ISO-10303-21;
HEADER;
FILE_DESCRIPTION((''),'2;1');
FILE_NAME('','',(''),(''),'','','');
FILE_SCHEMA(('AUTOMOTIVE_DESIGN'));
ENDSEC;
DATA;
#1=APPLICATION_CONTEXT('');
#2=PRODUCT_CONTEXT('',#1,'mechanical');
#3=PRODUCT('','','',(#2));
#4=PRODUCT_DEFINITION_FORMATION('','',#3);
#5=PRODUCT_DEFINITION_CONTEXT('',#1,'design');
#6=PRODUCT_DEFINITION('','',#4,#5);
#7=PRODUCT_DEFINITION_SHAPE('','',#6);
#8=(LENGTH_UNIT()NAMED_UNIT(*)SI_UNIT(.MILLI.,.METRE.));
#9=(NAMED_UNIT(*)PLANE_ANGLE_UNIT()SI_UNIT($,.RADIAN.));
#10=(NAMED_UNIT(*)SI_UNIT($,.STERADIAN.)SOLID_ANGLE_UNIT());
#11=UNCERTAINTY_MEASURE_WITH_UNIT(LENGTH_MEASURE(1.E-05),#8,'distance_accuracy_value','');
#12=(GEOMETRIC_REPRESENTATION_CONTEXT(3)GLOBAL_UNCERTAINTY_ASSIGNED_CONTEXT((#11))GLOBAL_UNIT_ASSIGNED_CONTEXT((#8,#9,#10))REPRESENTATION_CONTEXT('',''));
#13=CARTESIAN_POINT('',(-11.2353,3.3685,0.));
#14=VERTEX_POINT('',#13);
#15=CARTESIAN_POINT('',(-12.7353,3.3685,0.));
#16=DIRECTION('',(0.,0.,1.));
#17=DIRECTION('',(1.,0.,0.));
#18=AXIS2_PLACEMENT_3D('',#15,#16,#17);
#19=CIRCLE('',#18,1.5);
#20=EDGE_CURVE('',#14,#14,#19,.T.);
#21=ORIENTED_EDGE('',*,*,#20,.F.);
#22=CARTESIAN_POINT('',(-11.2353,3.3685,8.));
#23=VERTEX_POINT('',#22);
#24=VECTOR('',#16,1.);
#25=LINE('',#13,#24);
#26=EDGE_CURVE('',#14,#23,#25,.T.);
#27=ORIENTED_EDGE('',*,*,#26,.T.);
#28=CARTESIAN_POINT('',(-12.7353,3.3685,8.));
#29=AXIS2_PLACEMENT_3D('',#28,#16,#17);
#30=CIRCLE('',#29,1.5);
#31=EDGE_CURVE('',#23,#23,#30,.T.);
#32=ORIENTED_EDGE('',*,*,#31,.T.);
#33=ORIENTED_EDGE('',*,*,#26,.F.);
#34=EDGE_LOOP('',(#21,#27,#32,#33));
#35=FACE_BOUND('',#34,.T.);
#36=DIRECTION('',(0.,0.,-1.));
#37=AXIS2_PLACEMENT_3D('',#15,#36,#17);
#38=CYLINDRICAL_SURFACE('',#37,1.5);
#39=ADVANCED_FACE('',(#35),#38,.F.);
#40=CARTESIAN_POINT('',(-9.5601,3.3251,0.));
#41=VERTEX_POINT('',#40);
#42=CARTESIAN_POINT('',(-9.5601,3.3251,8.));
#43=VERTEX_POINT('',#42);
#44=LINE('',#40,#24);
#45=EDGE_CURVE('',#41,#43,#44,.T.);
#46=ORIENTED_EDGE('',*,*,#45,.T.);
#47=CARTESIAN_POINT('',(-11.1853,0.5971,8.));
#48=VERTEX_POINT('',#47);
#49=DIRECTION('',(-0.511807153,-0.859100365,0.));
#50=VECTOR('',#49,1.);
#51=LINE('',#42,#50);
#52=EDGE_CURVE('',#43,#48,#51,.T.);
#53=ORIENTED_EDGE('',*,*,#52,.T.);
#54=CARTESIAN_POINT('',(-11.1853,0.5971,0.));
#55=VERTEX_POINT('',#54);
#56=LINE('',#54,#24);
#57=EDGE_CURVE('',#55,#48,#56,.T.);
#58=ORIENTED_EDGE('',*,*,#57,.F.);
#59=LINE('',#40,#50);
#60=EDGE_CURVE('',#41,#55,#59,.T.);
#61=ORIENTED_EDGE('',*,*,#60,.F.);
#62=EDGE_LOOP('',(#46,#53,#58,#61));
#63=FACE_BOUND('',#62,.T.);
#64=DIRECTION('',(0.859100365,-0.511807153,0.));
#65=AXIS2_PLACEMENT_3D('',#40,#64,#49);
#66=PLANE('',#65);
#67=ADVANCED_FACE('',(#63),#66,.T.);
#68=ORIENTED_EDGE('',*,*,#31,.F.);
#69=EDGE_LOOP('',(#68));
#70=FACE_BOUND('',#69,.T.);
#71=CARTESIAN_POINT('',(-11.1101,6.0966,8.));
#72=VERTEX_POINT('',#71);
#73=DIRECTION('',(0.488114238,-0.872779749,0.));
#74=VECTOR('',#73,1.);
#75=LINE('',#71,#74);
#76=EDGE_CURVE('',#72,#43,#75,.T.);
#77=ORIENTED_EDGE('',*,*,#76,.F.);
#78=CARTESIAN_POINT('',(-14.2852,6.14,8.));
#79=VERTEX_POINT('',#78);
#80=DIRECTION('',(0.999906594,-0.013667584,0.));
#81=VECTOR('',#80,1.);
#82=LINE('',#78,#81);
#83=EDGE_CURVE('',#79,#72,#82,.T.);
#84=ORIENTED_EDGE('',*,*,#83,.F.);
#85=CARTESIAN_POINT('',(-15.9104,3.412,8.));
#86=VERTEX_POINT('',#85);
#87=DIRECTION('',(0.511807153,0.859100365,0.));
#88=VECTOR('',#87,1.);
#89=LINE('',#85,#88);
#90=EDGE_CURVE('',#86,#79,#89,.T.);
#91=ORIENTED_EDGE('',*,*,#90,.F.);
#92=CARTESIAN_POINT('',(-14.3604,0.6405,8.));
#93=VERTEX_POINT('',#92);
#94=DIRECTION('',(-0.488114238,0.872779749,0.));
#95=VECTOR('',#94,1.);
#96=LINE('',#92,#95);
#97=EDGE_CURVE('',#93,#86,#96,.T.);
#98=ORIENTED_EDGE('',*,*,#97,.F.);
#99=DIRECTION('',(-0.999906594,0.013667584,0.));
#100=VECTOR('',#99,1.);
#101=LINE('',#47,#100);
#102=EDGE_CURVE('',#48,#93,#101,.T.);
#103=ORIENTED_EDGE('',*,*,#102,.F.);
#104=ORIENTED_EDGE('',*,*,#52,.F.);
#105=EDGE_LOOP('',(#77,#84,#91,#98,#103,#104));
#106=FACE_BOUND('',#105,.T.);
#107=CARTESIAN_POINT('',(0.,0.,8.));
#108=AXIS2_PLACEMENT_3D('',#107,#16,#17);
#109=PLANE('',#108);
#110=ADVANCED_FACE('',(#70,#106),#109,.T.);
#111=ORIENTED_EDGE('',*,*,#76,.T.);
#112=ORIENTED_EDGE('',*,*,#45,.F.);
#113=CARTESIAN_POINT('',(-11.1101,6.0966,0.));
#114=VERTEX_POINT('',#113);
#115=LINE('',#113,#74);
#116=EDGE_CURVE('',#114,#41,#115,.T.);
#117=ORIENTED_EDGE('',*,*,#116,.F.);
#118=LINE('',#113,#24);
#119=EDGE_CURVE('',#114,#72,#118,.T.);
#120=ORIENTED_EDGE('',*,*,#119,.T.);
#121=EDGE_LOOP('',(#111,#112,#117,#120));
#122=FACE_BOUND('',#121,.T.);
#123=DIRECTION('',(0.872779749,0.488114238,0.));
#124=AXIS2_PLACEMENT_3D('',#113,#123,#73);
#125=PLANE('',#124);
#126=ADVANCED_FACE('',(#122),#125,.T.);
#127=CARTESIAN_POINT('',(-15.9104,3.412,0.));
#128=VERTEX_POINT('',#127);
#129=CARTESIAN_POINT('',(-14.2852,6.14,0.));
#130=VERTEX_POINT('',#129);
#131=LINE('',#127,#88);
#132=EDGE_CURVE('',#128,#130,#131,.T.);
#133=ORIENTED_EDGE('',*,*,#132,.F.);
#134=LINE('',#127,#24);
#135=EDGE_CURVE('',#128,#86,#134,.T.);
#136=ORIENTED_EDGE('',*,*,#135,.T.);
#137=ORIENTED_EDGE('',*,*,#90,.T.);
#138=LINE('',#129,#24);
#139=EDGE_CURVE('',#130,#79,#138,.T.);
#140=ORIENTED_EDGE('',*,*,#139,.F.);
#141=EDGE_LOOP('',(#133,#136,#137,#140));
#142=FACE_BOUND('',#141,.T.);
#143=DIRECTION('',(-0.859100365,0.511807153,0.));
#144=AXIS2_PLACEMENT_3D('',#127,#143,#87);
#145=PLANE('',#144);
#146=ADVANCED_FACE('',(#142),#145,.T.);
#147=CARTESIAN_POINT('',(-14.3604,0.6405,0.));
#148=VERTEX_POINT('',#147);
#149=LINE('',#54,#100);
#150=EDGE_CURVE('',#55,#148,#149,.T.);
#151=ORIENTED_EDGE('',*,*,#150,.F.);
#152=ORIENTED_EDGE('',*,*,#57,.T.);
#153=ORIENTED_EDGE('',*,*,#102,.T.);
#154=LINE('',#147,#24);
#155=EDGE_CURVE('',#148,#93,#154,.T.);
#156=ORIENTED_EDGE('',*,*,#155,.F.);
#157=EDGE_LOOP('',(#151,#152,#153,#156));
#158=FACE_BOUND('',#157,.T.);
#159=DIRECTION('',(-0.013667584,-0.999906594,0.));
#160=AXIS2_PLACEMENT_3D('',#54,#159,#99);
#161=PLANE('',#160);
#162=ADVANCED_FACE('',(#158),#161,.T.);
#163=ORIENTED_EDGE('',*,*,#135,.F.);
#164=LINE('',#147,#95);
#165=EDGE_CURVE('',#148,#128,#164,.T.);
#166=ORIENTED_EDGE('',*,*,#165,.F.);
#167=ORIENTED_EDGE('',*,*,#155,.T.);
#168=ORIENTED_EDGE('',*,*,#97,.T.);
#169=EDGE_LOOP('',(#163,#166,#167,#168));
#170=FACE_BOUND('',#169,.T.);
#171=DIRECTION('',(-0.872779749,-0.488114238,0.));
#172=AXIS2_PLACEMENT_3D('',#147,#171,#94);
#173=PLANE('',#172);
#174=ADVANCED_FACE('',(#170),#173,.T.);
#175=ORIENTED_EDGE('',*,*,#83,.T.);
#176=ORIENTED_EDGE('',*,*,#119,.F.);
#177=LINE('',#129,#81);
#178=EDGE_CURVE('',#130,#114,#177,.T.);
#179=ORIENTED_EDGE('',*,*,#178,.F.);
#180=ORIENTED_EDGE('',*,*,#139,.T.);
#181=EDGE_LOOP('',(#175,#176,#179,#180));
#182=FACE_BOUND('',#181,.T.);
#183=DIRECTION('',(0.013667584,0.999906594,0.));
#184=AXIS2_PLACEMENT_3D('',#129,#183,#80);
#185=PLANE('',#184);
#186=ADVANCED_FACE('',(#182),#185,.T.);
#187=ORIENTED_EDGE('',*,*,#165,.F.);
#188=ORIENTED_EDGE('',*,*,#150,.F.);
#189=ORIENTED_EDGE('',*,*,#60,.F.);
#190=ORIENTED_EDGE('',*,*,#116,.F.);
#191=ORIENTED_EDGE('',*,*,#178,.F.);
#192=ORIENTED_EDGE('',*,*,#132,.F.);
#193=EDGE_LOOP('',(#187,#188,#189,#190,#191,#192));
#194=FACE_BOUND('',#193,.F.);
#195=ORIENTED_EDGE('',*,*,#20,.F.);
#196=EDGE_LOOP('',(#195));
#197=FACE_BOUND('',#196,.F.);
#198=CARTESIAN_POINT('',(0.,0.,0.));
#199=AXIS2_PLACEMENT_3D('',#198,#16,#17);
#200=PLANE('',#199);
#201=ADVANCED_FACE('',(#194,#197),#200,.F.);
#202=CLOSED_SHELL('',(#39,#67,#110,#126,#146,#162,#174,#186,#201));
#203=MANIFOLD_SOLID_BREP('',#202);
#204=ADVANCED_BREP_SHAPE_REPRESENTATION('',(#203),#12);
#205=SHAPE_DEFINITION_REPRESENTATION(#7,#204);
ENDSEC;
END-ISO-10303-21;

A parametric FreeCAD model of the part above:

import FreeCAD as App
import Part
import Sketcher

doc = App.newDocument("Part")
params = doc.addObject("Spreadsheet::Sheet", "Params")
for row, (alias, value) in enumerate([
    ("sketch1_diameter", "3 mm"),
    ("pad1_length", "8 mm"),
], start=1):
    params.set(f"A{row}", alias)
    params.set(f"B{row}", "=" + value)
    params.setAlias(f"B{row}", alias)

body = doc.addObject("PartDesign::Body", "Body")

sketch1 = body.newObject("Sketcher::SketchObject", "Sketch")
sketch1.AttachmentSupport = (doc.getObject("XY_Plane"), [""])
sketch1.MapMode = "FlatFace"
sketch1.addGeometry([
    Part.LineSegment(App.Vector(-9.5601, 3.3251, 0), App.Vector(-11.1101, 6.0966, 0)),
    Part.LineSegment(App.Vector(-11.1101, 6.0966, 0), App.Vector(-14.2852, 6.14, 0)),
    Part.LineSegment(App.Vector(-14.2852, 6.14, 0), App.Vector(-15.9104, 3.412, 0)),
    Part.LineSegment(App.Vector(-15.9104, 3.412, 0), App.Vector(-14.3604, 0.6405, 0)),
    Part.LineSegment(App.Vector(-14.3604, 0.6405, 0), App.Vector(-11.1853, 0.5971, 0)),
    Part.LineSegment(App.Vector(-11.1853, 0.5971, 0), App.Vector(-9.5601, 3.3251, 0)),
    Part.Circle(App.Vector(-12.7353, 3.3685, 0), App.Vector(0, 0, 1), 1.5),
], False)
sketch1.addConstraint([
    Sketcher.Constraint("Coincident", 0, 2, 1, 1),
    Sketcher.Constraint("Coincident", 1, 2, 2, 1),
    Sketcher.Constraint("Coincident", 2, 2, 3, 1),
    Sketcher.Constraint("Coincident", 3, 2, 4, 1),
    Sketcher.Constraint("Coincident", 4, 2, 5, 1),
    Sketcher.Constraint("Coincident", 5, 2, 0, 1),
    Sketcher.Constraint("Diameter", 6, 3.0),
    Sketcher.Constraint("DistanceY", 3, 2, 1, 2, 5.4995),
    Sketcher.Constraint("DistanceY", 4, 2, 0, 2, 5.4995),
    Sketcher.Constraint("DistanceX", 1, 2, 4, 2, 3.1),
    Sketcher.Constraint("DistanceX", 0, 2, -1, 1, 11.11),
    Sketcher.Constraint("DistanceY", -1, 1, 1, 2, 6.14),
    Sketcher.Constraint("DistanceX", 5, 2, -1, 1, 9.56),
    Sketcher.Constraint("DistanceX", 1, 2, 6, 3, 1.55),
    Sketcher.Constraint("DistanceX", 2, 2, 3, 2, 1.55),
    Sketcher.Constraint("DistanceY", -1, 1, 2, 2, 3.412),
    Sketcher.Constraint("DistanceY", -1, 1, 4, 2, 0.597),
    Sketcher.Constraint("DistanceY", -1, 1, 5, 2, 3.325),
    Sketcher.Constraint("DistanceY", 6, 3, 0, 2, 2.728),
    Sketcher.Constraint("DistanceX", 1, 2, 0, 2, 3.175),
    Sketcher.Constraint("DistanceX", 2, 2, 6, 3, 3.175),
])
sketch1.setExpression("Constraints[6]", "Params.sketch1_diameter")
pad1 = body.newObject("PartDesign::Pad", "Pad")
pad1.Profile = sketch1
pad1.setExpression("Length", "Params.pad1_length")

doc.recompute()
